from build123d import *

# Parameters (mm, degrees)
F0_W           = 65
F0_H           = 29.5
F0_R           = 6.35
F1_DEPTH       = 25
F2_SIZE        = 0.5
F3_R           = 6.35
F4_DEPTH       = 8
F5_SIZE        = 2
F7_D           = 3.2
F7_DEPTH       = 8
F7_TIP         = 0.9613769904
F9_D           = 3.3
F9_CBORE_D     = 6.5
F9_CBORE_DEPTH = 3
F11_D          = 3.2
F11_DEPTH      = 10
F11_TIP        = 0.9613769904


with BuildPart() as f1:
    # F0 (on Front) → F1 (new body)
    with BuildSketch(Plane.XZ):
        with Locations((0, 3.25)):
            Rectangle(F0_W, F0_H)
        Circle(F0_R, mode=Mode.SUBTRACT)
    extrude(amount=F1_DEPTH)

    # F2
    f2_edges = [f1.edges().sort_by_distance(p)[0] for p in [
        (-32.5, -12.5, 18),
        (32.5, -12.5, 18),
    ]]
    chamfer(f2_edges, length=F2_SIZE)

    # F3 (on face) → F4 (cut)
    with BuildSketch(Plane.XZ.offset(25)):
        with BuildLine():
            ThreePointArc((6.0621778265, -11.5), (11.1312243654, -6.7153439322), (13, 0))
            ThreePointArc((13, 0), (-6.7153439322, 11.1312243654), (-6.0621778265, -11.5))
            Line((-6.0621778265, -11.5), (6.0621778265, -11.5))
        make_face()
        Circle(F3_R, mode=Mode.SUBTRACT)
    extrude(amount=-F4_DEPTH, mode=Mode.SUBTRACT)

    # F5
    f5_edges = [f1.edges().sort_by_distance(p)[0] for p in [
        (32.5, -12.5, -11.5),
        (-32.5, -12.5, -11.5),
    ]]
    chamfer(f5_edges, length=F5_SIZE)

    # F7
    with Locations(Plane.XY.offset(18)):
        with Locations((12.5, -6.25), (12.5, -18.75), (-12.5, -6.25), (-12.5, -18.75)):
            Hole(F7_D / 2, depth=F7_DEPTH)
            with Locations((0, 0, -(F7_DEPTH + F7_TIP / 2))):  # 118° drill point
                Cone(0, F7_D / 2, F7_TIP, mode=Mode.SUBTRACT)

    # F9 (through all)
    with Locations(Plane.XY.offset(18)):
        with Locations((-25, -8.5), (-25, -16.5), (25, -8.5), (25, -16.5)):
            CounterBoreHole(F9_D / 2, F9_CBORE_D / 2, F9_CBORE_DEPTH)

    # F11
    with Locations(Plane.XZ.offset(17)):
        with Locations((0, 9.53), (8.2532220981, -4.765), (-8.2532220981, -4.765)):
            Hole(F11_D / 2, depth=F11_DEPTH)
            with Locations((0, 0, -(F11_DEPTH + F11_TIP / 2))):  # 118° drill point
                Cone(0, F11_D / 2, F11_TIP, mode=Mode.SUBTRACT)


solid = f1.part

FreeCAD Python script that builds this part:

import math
import FreeCAD as App
import Part
import Sketcher
Q = App.Units.Quantity


def edges_at(feature, points):
    """Names of the edges that pass closest to the given points."""
    edges = feature.Shape.Edges
    near = lambda p: min(range(len(edges)), key=lambda i: edges[i].distToShape(Part.Vertex(*p))[0])
    return sorted({f"Edge{near(p) + 1}" for p in points})


def add_polygon(sketch, points):
    """Adds a closed chain of lines whose ends are joined by coincident constraints."""
    first, n = sketch.GeometryCount, len(points)
    for a, b in zip(points, points[1:] + points[:1]):
        sketch.addGeometry(Part.LineSegment(App.Vector(*a, 0), App.Vector(*b, 0)), False)
    for i in range(n):
        sketch.addConstraint(Sketcher.Constraint("Coincident", first + i, 2, first + (i + 1) % n, 1))

doc = App.newDocument("Part")
body = doc.addObject("PartDesign::Body", "Body")

sketch1 = body.newObject("Sketcher::SketchObject", "Sketch")
sketch1.AttachmentSupport = (doc.getObject("XZ_Plane"), [""])
sketch1.MapMode = "FlatFace"
add_polygon(sketch1, [(-32, 18), (-32, -12), (32, -12), (32, 18)])
sketch1.addGeometry(Part.Circle(App.Vector(0, 0, 0), App.Vector(0, 0, 1), 6), False)
sketch1.addConstraint(Sketcher.Constraint("Vertical", 0))
sketch1.addConstraint(Sketcher.Constraint("Horizontal", 1))
sketch1.addConstraint(Sketcher.Constraint("Vertical", 2))
sketch1.addConstraint(Sketcher.Constraint("Horizontal", 3))
sketch1.addConstraint(Sketcher.Constraint("Coincident", 4, 3, -1, 1))
sketch1.addConstraint(Sketcher.Constraint("Diameter", 4, Q("12.7 mm")))
sketch1.addConstraint(Sketcher.Constraint("DistanceX", 1, 1, 1, 2, Q("65 mm")))
sketch1.addConstraint(Sketcher.Constraint("DistanceY", 0, 2, 0, 1, Q("29.5 mm")))
sketch1.addConstraint(Sketcher.Constraint("DistanceY", -1, 1, 2, 2, Q("18 mm")))
sketch1.addConstraint(Sketcher.Constraint("DistanceX", 0, 2, -1, 1, Q("32.5 mm")))
pad1 = body.newObject("PartDesign::Pad", "Pad")
pad1.Profile = sketch1
pad1.Length = 25
doc.recompute()

chamfer = body.newObject("PartDesign::Chamfer", "Chamfer")
chamfer.Base = (pad1, edges_at(pad1, [(-32.5, -12.5, 18), (32.5, -12.5, 18)]))
chamfer.Size = 0.5

sketch2 = body.newObject("Sketcher::SketchObject", "Sketch001")
sketch2.AttachmentSupport = (doc.getObject("XZ_Plane"), [""])
sketch2.MapMode = "FlatFace"
sketch2.AttachmentOffset = App.Placement(App.Vector(0, 0, 25), App.Rotation())
sketch2.addGeometry(Part.ArcOfCircle(Part.Circle(App.Vector(0, 0, 0), App.Vector(0, 0, 1), 13), math.radians(-62), math.radians(0)), False)
sketch2.addGeometry(Part.ArcOfCircle(Part.Circle(App.Vector(0, 0, 0), App.Vector(0, 0, 1), 13), math.radians(0), math.radians(242)), False)
sketch2.addGeometry(Part.LineSegment(App.Vector(-6, -12, 0), App.Vector(6, -12, 0)), False)
sketch2.addGeometry(Part.Circle(App.Vector(0, 0, 0), App.Vector(0, 0, 1), 6), False)
sketch2.addConstraint(Sketcher.Constraint("Tangent", 0, 2, 1, 1))
sketch2.addConstraint(Sketcher.Constraint("Coincident", 1, 2, 2, 1))
sketch2.addConstraint(Sketcher.Constraint("Coincident", 2, 2, 0, 1))
sketch2.addConstraint(Sketcher.Constraint("Horizontal", 2))
sketch2.addConstraint(Sketcher.Constraint("Coincident", 0, 3, -1, 1))
sketch2.addConstraint(Sketcher.Constraint("Coincident", 3, 3, -1, 1))
sketch2.addConstraint(Sketcher.Constraint("Equal", 0, 1))
sketch2.addConstraint(Sketcher.Constraint("PointOnObject", 0, 2, -1))
sketch2.addConstraint(Sketcher.Constraint("Radius", 0, Q("13 mm")))
sketch2.addConstraint(Sketcher.Constraint("Diameter", 3, Q("12.7 mm")))
sketch2.addConstraint(Sketcher.Constraint("DistanceY", 1, 2, -1, 1, Q("11.5 mm")))
pocket1 = body.newObject("PartDesign::Pocket", "Pocket")
pocket1.Profile = sketch2
pocket1.Length = 8
doc.recompute()

chamfer2 = body.newObject("PartDesign::Chamfer", "Chamfer001")
chamfer2.Base = (pocket1, edges_at(pocket1, [(32.5, -12.5, -11.5), (-32.5, -12.5, -11.5)]))
chamfer2.Size = 2

sketch3 = body.newObject("Sketcher::SketchObject", "Sketch002")
sketch3.AttachmentSupport = (doc.getObject("XY_Plane"), [""])
sketch3.MapMode = "FlatFace"
sketch3.AttachmentOffset = App.Placement(App.Vector(0, 0, 18), App.Rotation())
sketch3.addGeometry(Part.Circle(App.Vector(12.5, -6.2, 0), App.Vector(0, 0, 1), 1.6), False)
sketch3.addGeometry(Part.Circle(App.Vector(12.5, -18.8, 0), App.Vector(0, 0, 1), 1.6), False)
sketch3.addGeometry(Part.Circle(App.Vector(-12.5, -6.2, 0), App.Vector(0, 0, 1), 1.6), False)
sketch3.addGeometry(Part.Circle(App.Vector(-12.5, -18.8, 0), App.Vector(0, 0, 1), 1.6), False)
sketch3.addConstraint(Sketcher.Constraint("Equal", 0, 1))
sketch3.addConstraint(Sketcher.Constraint("Equal", 1, 2))
sketch3.addConstraint(Sketcher.Constraint("Equal", 2, 3))
sketch3.addConstraint(Sketcher.Constraint("Symmetric", 0, 3, 2, 3, -2))
sketch3.addConstraint(Sketcher.Constraint("Symmetric", 1, 3, 3, 3, -2))
sketch3.addConstraint(Sketcher.Constraint("Vertical", 0, 3, 1, 3))
sketch3.addConstraint(Sketcher.Constraint("Diameter", 0, Q("3.2 mm")))
sketch3.addConstraint(Sketcher.Constraint("DistanceX", 2, 3, 0, 3, Q("25 mm")))
sketch3.addConstraint(Sketcher.Constraint("DistanceY", 1, 3, 0, 3, Q("12.5 mm")))
sketch3.addConstraint(Sketcher.Constraint("DistanceY", 0, 3, -1, 1, Q("6.25 mm")))
doc.recompute()
hole = body.newObject("PartDesign::Hole", "Hole")
hole.Profile = sketch3
hole.ThreadType = "None"
hole.Diameter = 3.2
hole.DepthType = "Dimension"
hole.Depth = 8
hole.DrillPoint = "Angled"
hole.DrillPointAngle = 118

sketch4 = body.newObject("Sketcher::SketchObject", "Sketch003")
sketch4.AttachmentSupport = (doc.getObject("XY_Plane"), [""])
sketch4.MapMode = "FlatFace"
sketch4.AttachmentOffset = App.Placement(App.Vector(0, 0, 18), App.Rotation())
sketch4.addGeometry(Part.Circle(App.Vector(-25, -8.5, 0), App.Vector(0, 0, 1), 1.6), False)
sketch4.addGeometry(Part.Circle(App.Vector(-25, -16.5, 0), App.Vector(0, 0, 1), 1.6), False)
sketch4.addGeometry(Part.Circle(App.Vector(25, -8.5, 0), App.Vector(0, 0, 1), 1.6), False)
sketch4.addGeometry(Part.Circle(App.Vector(25, -16.5, 0), App.Vector(0, 0, 1), 1.6), False)
sketch4.addConstraint(Sketcher.Constraint("Equal", 0, 1))
sketch4.addConstraint(Sketcher.Constraint("Equal", 1, 2))
sketch4.addConstraint(Sketcher.Constraint("Equal", 2, 3))
sketch4.addConstraint(Sketcher.Constraint("Symmetric", 0, 3, 2, 3, -2))
sketch4.addConstraint(Sketcher.Constraint("Symmetric", 1, 3, 3, 3, -2))
sketch4.addConstraint(Sketcher.Constraint("Vertical", 0, 3, 1, 3))
sketch4.addConstraint(Sketcher.Constraint("Diameter", 0, Q("3.3 mm")))
sketch4.addConstraint(Sketcher.Constraint("DistanceX", 0, 3, -1, 1, Q("25 mm")))
sketch4.addConstraint(Sketcher.Constraint("DistanceY", 1, 3, 0, 3, Q("8 mm")))
sketch4.addConstraint(Sketcher.Constraint("DistanceY", 0, 3, -1, 1, Q("8.5 mm")))
doc.recompute()
hole2 = body.newObject("PartDesign::Hole", "Hole001")
hole2.Profile = sketch4
hole2.ThreadType = "None"
hole2.Diameter = 3.3
hole2.DepthType = "ThroughAll"
hole2.HoleCutType = "Counterbore"
hole2.HoleCutDiameter = 6.5
hole2.HoleCutDepth = 3

sketch5 = body.newObject("Sketcher::SketchObject", "Sketch004")
sketch5.AttachmentSupport = (doc.getObject("XZ_Plane"), [""])
sketch5.MapMode = "FlatFace"
sketch5.AttachmentOffset = App.Placement(App.Vector(0, 0, 17), App.Rotation())
sketch5.addGeometry(Part.Circle(App.Vector(0, 9.5, 0), App.Vector(0, 0, 1), 1.6), False)
sketch5.addGeometry(Part.Circle(App.Vector(8.3, -4.8, 0), App.Vector(0, 0, 1), 1.6), False)
sketch5.addGeometry(Part.Circle(App.Vector(-8.3, -4.8, 0), App.Vector(0, 0, 1), 1.6), False)
sketch5.addConstraint(Sketcher.Constraint("Equal", 0, 1))
sketch5.addConstraint(Sketcher.Constraint("Equal", 1, 2))
sketch5.addConstraint(Sketcher.Constraint("Symmetric", 1, 3, 2, 3, -2))
sketch5.addConstraint(Sketcher.Constraint("PointOnObject", 0, 3, -2))
sketch5.addConstraint(Sketcher.Constraint("Diameter", 0, Q("3.2 mm")))
sketch5.addConstraint(Sketcher.Constraint("DistanceY", -1, 1, 0, 3, Q("9.53 mm")))
sketch5.addConstraint(Sketcher.Constraint("DistanceY", 1, 3, -1, 1, Q("4.765 mm")))
sketch5.addConstraint(Sketcher.Constraint("DistanceX", -1, 1, 1, 3, Q("8.253222 mm")))
doc.recompute()
hole3 = body.newObject("PartDesign::Hole", "Hole002")
hole3.Profile = sketch5
hole3.ThreadType = "None"
hole3.Diameter = 3.2
hole3.DepthType = "Dimension"
hole3.Depth = 10
hole3.DrillPoint = "Angled"
hole3.DrillPointAngle = 118

doc.recompute()
